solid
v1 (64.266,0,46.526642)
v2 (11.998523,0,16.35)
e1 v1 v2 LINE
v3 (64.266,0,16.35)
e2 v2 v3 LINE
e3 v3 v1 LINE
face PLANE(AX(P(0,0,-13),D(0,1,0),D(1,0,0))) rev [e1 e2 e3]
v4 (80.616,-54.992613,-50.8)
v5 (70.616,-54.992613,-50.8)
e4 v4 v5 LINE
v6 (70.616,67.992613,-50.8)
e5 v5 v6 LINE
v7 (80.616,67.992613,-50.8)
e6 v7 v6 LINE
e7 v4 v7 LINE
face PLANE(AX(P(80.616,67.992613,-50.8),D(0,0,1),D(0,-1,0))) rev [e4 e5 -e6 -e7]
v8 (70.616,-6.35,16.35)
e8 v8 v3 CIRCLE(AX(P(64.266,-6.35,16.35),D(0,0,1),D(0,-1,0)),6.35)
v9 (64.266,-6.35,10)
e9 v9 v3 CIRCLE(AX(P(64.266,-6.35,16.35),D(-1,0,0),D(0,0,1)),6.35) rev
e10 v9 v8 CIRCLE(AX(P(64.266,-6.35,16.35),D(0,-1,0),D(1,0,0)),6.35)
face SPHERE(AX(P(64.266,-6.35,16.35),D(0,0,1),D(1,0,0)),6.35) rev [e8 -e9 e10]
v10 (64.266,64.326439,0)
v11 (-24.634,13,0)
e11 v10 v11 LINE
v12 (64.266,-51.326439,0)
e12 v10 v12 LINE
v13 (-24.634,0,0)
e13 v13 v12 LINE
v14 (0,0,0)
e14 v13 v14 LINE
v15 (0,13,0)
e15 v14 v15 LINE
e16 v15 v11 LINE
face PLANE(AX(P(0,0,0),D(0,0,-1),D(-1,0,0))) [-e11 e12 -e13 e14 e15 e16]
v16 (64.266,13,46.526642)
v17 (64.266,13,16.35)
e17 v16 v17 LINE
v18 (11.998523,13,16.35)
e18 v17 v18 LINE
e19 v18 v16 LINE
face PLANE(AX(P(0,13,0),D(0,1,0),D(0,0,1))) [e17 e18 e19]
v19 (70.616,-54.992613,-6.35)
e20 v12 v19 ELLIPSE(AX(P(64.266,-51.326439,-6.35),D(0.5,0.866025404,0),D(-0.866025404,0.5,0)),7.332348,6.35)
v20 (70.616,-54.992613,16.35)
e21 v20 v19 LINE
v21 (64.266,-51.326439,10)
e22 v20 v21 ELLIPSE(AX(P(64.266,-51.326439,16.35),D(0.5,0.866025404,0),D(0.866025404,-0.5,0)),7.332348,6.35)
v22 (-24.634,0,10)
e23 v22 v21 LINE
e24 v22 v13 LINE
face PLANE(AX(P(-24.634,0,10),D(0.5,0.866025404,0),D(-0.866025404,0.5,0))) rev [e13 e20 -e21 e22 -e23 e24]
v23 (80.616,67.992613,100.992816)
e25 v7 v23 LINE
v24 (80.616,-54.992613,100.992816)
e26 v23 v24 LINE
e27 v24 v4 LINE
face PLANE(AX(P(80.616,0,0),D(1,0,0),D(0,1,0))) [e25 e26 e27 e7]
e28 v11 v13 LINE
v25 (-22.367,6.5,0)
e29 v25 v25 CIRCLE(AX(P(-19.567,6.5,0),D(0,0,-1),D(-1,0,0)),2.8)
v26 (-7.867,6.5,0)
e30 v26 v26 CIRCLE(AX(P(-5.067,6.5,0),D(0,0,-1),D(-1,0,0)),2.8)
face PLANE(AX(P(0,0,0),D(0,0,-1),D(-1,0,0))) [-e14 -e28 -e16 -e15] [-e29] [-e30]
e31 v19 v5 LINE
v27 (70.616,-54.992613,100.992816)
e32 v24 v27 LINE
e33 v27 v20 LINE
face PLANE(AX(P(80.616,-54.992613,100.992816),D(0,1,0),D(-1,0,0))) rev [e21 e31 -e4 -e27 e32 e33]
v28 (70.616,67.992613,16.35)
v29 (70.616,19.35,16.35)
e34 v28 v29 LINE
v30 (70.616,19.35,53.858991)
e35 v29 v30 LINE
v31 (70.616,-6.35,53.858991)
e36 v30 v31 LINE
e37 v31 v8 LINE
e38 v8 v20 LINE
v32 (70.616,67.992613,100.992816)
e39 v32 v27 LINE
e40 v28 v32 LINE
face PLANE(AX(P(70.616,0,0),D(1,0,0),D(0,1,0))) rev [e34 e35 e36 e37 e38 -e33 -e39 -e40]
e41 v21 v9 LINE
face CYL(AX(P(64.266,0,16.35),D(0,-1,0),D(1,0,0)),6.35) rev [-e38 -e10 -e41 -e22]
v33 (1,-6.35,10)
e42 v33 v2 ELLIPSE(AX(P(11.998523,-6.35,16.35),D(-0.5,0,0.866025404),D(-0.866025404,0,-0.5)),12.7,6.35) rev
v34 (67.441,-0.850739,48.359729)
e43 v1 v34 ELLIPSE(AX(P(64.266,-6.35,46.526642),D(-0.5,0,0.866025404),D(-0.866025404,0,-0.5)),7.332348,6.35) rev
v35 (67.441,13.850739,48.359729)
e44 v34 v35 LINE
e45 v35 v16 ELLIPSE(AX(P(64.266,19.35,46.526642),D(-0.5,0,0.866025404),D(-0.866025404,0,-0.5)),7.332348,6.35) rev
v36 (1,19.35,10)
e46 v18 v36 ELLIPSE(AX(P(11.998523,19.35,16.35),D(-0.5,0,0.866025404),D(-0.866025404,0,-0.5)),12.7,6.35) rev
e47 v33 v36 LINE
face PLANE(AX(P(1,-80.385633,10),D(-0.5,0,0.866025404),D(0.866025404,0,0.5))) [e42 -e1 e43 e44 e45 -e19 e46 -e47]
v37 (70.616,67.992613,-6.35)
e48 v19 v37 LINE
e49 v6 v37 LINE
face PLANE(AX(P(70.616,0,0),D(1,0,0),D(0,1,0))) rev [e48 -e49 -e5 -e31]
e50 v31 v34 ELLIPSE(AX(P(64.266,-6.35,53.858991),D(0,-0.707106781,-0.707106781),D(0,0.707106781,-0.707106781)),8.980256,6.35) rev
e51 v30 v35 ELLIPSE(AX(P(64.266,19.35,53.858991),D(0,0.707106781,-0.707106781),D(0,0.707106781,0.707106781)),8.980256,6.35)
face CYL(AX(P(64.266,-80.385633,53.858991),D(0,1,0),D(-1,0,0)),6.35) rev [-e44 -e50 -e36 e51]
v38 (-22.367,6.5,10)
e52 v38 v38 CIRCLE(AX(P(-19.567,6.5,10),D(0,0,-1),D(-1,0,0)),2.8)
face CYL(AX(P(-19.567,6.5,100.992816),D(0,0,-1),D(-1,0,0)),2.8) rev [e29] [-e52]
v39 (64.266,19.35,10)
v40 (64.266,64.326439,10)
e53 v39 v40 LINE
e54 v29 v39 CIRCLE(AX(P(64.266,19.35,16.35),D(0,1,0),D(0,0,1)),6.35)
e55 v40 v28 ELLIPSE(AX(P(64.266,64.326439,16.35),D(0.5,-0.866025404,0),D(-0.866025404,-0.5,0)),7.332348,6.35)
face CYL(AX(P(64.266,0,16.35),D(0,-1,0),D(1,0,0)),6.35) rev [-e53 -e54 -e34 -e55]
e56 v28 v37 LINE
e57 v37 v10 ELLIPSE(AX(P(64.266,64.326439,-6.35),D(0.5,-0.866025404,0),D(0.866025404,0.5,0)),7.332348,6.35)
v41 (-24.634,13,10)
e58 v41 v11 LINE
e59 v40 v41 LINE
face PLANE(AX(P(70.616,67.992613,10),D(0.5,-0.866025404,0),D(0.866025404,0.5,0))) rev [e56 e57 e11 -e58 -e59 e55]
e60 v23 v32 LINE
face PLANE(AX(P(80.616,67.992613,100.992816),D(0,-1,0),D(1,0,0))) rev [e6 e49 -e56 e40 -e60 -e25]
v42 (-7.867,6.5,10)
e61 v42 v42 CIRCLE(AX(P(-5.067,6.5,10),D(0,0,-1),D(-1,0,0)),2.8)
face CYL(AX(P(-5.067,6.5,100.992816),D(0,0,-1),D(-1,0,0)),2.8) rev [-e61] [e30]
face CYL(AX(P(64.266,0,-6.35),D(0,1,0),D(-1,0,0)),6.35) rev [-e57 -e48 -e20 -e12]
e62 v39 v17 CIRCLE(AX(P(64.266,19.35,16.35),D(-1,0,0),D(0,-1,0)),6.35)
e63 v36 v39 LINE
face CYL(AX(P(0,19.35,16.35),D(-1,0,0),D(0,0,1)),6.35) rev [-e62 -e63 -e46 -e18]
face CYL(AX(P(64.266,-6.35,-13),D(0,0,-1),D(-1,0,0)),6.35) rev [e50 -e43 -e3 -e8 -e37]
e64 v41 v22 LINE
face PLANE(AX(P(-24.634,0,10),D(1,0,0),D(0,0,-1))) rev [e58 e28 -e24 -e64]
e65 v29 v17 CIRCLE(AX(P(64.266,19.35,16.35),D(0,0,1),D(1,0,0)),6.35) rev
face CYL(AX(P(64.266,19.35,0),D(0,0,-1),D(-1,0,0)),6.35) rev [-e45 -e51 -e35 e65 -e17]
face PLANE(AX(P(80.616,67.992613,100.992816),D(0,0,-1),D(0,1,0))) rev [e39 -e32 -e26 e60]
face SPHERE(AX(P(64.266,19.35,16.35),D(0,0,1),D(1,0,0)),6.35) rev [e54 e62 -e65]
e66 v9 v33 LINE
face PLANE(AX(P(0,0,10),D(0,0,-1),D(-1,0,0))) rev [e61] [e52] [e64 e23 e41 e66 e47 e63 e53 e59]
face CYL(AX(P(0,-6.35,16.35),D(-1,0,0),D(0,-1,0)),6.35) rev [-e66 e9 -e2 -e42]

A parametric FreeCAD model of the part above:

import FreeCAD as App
import Part
import Sketcher

V = App.Vector
Q = App.Units.Quantity


def edges_at(feature, points):
    """Names of the edges that pass closest to the given points."""
    edges = feature.Shape.Edges
    near = lambda p: min(range(len(edges)), key=lambda i: edges[i].distToShape(Part.Vertex(*p))[0])
    return sorted({f"Edge{near(p) + 1}" for p in points})


def add_polygon(sketch, points):
    """Adds a closed chain of lines whose ends are joined by coincident constraints."""
    first, n = sketch.GeometryCount, len(points)
    for a, b in zip(points, points[1:] + points[:1]):
        sketch.addGeometry(Part.LineSegment(App.Vector(*a, 0), App.Vector(*b, 0)), False)
    for i in range(n):
        sketch.addConstraint(Sketcher.Constraint("Coincident", first + i, 2, first + (i + 1) % n, 1))

doc = App.newDocument("Part")
body = doc.addObject("PartDesign::Body", "Body")

sketch1 = body.newObject("Sketcher::SketchObject", "Sketch")
sketch1.AttachmentSupport = (doc.getObject("XY_Plane"), [""])
sketch1.MapMode = "FlatFace"
add_polygon(sketch1, [(-25, 13), (-25, 0), (71, -55), (71, 68)])
sketch1.addConstraint([
    Sketcher.Constraint("Vertical", 0),
    Sketcher.Constraint("Vertical", 2),
    Sketcher.Constraint("PointOnObject", 0, 2, -1),
    Sketcher.Constraint("Equal", 1, 3),
    Sketcher.Constraint("DistanceY", 0, 2, 0, 1, Q("13 mm")),
    Sketcher.Constraint("Angle", 1, Q("-30 deg")),
    Sketcher.Constraint("DistanceX", 0, 2, 1, 2, Q("95.25 mm")),
    Sketcher.Constraint("DistanceX", 0, 2, -1, 1, Q("24.634 mm")),
])
pad1 = body.newObject("PartDesign::Pad", "Pad")
pad1.Profile = sketch1
pad1.Length = 10

sketch2 = body.newObject("Sketcher::SketchObject", "Sketch001")
sketch2.AttachmentSupport = (doc.getObject("XZ_Plane"), [""])
sketch2.MapMode = "FlatFace"
sketch2.AttachmentOffset = App.Placement(V(0, 0, -13), App.Rotation())
add_polygon(sketch2, [(71, 50), (71, 10), (1, 10)])
sketch2.addConstraint([
    Sketcher.Constraint("Vertical", 0),
    Sketcher.Constraint("Horizontal", 1),
    Sketcher.Constraint("Angle", 2, Q("30 deg")),
    Sketcher.Constraint("DistanceY", -1, 1, 0, 2, Q("10 mm")),
    Sketcher.Constraint("DistanceX", -1, 1, 1, 2, Q("1 mm")),
    Sketcher.Constraint("DistanceX", 1, 2, 1, 1, Q("69.616 mm")),
])
pad2 = body.newObject("PartDesign::Pad", "Pad001")
pad2.Profile = sketch2
pad2.Length = 13

sketch3 = body.newObject("Sketcher::SketchObject", "Sketch002")
sketch3.AttachmentSupport = (doc.getObject("YZ_Plane"), [""])
sketch3.MapMode = "FlatFace"
sketch3.AttachmentOffset = App.Placement(V(0, 0, 70.616), App.Rotation())
add_polygon(sketch3, [(68, 101), (-55, 101), (-55, -51), (68, -51)])
sketch3.addConstraint([
    Sketcher.Constraint("Horizontal", 0),
    Sketcher.Constraint("Vertical", 1),
    Sketcher.Constraint("Horizontal", 2),
    Sketcher.Constraint("Vertical", 3),
    Sketcher.Constraint("DistanceY", 1, 2, -1, 1, Q("50.8 mm")),
    Sketcher.Constraint("DistanceX", 0, 2, 0, 1, Q("122.985226 mm")),
    Sketcher.Constraint("DistanceY", 1, 2, 1, 1, Q("151.792816 mm")),
    Sketcher.Constraint("DistanceX", 0, 2, -1, 1, Q("54.992613 mm")),
])
pad3 = body.newObject("PartDesign::Pad", "Pad002")
pad3.Profile = sketch3
pad3.Length = 10

sketch4 = body.newObject("Sketcher::SketchObject", "Sketch003")
sketch4.AttachmentSupport = (doc.getObject("XY_Plane"), [""])
sketch4.MapMode = "FlatFace"
sketch4.addGeometry([
    Part.Circle(V(-5.1, 6.5, 0), V(0, 0, 1), 2.8),
    Part.Circle(V(-19.6, 6.5, 0), V(0, 0, 1), 2.8),
], False)
sketch4.addConstraint([
    Sketcher.Constraint("Equal", 0, 1),
    Sketcher.Constraint("Horizontal", 0, 3, 1, 3),
    Sketcher.Constraint("Diameter", 0, Q("5.6 mm")),
    Sketcher.Constraint("DistanceY", -1, 1, 0, 3, Q("6.5 mm")),
    Sketcher.Constraint("DistanceX", 1, 3, 0, 3, Q("14.5 mm")),
    Sketcher.Constraint("DistanceX", 0, 3, -1, 1, Q("5.067 mm")),
])
pocket1 = body.newObject("PartDesign::Pocket", "Pocket")
pocket1.Profile = sketch4
pocket1.Type = "ThroughAll"
pocket1.Reversed = True
doc.recompute()

fillet = body.newObject("PartDesign::Fillet", "Fillet")
fillet.Base = (pocket1, edges_at(pocket1, [
    (70.616, 40.496, 10),
    (70.616, 6.5, 50.193),
    (35.808, 13, 10),
    (70.616, 13, 30.096),
    (35.808, 0, 10),
    (70.616, 0, 30.096),
    (70.616, -27.496, 10),
    (70.616, 6.5, 0),
]))
fillet.Radius = 6.35

doc.recompute()
